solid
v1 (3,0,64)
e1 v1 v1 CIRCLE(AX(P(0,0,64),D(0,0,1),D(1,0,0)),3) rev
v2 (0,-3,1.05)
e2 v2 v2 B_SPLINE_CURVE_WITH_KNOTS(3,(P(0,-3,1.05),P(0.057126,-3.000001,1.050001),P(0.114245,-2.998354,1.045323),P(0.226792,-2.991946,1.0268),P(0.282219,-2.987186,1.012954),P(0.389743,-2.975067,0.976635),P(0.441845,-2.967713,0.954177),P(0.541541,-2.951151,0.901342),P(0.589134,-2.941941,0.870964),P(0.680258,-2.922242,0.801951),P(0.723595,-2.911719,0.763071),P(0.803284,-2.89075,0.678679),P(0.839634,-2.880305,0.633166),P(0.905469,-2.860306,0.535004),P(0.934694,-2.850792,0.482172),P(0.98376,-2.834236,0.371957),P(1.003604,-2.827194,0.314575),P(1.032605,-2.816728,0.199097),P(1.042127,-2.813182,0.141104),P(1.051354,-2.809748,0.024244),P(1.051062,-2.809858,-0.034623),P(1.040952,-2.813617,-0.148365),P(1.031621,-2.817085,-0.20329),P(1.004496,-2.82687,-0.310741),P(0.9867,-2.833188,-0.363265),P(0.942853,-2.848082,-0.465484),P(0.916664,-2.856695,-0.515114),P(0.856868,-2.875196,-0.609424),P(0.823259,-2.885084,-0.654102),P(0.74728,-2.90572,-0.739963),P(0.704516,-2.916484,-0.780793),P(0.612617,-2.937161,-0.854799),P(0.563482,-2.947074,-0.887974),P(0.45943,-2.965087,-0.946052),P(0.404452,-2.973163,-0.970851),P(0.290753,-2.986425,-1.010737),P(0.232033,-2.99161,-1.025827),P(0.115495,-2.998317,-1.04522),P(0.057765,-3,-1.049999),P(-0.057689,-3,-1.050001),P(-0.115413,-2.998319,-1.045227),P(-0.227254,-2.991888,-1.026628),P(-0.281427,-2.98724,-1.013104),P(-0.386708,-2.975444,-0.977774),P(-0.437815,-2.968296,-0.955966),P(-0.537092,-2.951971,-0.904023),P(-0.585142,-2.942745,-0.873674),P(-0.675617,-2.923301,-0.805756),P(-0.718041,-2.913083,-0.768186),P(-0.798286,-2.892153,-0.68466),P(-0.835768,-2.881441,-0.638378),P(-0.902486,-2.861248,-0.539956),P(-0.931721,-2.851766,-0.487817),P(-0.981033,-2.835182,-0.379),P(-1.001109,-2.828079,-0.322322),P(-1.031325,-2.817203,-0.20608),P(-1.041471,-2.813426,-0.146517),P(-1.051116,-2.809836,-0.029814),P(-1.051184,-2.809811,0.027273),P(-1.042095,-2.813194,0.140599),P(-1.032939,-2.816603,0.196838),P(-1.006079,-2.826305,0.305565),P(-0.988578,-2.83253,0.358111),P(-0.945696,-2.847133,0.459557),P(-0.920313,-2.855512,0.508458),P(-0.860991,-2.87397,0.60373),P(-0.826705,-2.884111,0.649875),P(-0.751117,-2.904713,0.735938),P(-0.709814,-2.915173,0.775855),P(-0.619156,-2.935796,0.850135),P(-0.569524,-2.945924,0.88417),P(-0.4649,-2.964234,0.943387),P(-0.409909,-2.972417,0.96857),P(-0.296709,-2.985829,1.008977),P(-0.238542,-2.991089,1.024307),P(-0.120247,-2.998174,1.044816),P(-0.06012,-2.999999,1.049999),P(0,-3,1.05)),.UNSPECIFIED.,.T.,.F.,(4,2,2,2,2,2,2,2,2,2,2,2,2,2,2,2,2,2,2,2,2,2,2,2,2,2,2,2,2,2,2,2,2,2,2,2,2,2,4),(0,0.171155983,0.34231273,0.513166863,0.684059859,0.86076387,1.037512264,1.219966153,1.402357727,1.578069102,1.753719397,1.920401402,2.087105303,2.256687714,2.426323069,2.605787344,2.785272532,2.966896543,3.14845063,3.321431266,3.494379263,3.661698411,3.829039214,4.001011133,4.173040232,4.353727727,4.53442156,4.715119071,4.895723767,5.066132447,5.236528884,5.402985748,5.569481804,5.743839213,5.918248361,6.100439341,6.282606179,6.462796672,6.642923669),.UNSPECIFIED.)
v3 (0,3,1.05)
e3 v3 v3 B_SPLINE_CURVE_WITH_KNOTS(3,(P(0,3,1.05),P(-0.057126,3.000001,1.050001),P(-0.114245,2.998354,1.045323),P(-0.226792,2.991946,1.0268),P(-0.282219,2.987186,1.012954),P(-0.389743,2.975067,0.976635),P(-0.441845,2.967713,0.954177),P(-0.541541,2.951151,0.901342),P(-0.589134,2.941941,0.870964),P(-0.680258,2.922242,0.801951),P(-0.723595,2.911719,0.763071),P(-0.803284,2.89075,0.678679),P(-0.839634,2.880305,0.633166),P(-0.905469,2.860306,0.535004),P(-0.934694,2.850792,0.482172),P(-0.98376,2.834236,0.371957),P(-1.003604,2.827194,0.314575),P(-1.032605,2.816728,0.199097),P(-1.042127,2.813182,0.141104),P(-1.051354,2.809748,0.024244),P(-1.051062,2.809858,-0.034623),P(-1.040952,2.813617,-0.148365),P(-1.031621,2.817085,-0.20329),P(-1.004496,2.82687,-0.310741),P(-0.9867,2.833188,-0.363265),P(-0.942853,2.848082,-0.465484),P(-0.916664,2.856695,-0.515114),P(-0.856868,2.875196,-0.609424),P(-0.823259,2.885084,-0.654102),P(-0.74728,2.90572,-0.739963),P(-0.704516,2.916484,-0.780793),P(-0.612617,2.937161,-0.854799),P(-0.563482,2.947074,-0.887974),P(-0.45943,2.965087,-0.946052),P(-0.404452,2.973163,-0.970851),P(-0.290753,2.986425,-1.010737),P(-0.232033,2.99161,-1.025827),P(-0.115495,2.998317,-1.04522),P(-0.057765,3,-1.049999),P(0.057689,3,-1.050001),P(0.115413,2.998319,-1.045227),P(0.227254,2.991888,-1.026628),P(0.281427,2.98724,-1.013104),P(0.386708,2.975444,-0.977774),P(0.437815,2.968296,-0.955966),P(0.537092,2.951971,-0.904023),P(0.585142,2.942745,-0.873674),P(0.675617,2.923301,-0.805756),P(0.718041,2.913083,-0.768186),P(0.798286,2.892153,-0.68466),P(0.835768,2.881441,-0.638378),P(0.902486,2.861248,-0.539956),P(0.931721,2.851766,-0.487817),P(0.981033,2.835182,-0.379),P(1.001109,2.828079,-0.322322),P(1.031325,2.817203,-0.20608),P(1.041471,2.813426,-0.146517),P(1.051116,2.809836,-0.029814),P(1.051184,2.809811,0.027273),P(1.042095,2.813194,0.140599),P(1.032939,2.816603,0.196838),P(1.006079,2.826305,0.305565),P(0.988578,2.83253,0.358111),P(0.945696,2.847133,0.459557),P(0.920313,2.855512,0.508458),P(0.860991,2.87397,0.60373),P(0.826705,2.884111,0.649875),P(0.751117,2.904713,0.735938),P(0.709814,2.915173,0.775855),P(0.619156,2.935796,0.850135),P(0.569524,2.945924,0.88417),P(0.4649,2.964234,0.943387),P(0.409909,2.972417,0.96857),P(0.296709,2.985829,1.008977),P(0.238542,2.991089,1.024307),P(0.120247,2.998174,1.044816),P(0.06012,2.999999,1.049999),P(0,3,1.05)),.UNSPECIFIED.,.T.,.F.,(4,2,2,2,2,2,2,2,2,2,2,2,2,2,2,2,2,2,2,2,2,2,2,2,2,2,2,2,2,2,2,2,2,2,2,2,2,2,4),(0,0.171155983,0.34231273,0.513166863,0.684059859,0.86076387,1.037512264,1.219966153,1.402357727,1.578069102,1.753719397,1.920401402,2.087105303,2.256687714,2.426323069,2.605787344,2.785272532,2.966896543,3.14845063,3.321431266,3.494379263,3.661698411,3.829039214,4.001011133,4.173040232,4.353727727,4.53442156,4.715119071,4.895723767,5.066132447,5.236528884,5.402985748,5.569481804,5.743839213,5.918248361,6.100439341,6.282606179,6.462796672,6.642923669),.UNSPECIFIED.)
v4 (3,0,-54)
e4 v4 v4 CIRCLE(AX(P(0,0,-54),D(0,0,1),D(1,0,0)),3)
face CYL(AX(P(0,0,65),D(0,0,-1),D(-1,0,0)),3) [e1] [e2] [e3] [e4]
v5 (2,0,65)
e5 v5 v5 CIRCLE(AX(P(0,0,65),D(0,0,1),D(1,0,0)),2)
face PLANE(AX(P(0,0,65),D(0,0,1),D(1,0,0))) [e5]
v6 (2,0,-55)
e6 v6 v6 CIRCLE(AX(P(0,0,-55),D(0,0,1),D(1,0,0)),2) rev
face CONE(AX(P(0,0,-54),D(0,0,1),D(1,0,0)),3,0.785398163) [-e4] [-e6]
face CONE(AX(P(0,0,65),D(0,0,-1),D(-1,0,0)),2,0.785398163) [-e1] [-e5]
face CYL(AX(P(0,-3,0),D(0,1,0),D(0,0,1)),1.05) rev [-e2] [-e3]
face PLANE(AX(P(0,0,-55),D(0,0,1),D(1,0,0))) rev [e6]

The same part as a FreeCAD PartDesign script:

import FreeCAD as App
import Part
import Sketcher

V = App.Vector
Q = App.Units.Quantity


def edges_at(feature, points):
    """Names of the edges that pass closest to the given points."""
    edges = feature.Shape.Edges
    near = lambda p: min(range(len(edges)), key=lambda i: edges[i].distToShape(Part.Vertex(*p))[0])
    return sorted({f"Edge{near(p) + 1}" for p in points})

doc = App.newDocument("Part")
body = doc.addObject("PartDesign::Body", "Body")

sketch1 = doc.addObject("Sketcher::SketchObject", "Sketch")
body.addObject(sketch1)
sketch1.AttachmentSupport = (doc.XY_Plane, [""])
sketch1.MapMode = "FlatFace"
sketch1.addGeometry(Part.Circle(V(0, 0, 0), V(0, 0, 1), 3), False)
sketch1.addConstraint([
    Sketcher.Constraint("Coincident", 0, 3, -1, 1),
    Sketcher.Constraint("Diameter", 0, Q("6 mm")),
])
pad1 = doc.addObject("PartDesign::Pad", "Pad")
body.addObject(pad1)
pad1.Profile = sketch1
pad1.Length = 65

sketch2 = doc.addObject("Sketcher::SketchObject", "Sketch001")
body.addObject(sketch2)
sketch2.AttachmentSupport = (doc.XY_Plane, [""])
sketch2.MapMode = "FlatFace"
sketch2.AttachmentOffset = App.Placement(V(0, 0, 65), App.Rotation())
sketch2.addGeometry(Part.Circle(V(0, 0, 0), V(0, 0, 1), 3), False)
sketch2.addConstraint([
    Sketcher.Constraint("Coincident", 0, 3, -1, 1),
    Sketcher.Constraint("Diameter", 0, Q("6 mm")),
])
pad2 = doc.addObject("PartDesign::Pad", "Pad001")
body.addObject(pad2)
pad2.Profile = sketch2
pad2.Length = 120
pad2.Reversed = True
doc.recompute()

chamfer = doc.addObject("PartDesign::Chamfer", "Chamfer")
body.addObject(chamfer)
chamfer.Base = (pad2, edges_at(pad2, [(-3, 0, 65), (-3, 0, -55)]))
chamfer.Size = 1

sketch3 = doc.addObject("Sketcher::SketchObject", "Sketch002")
body.addObject(sketch3)
sketch3.AttachmentSupport = (doc.XZ_Plane, [""])
sketch3.MapMode = "FlatFace"
sketch3.addGeometry(Part.Circle(V(0, 0, 0), V(0, 0, 1), 1.1), False)
sketch3.addConstraint([
    Sketcher.Constraint("Coincident", 0, 3, -1, 1),
    Sketcher.Constraint("Diameter", 0, Q("2.1 mm")),
])
pocket1 = doc.addObject("PartDesign::Pocket", "Pocket")
body.addObject(pocket1)
pocket1.Profile = sketch3
pocket1.Type = "ThroughAll"
pocket1.Midplane = True

doc.recompute()
